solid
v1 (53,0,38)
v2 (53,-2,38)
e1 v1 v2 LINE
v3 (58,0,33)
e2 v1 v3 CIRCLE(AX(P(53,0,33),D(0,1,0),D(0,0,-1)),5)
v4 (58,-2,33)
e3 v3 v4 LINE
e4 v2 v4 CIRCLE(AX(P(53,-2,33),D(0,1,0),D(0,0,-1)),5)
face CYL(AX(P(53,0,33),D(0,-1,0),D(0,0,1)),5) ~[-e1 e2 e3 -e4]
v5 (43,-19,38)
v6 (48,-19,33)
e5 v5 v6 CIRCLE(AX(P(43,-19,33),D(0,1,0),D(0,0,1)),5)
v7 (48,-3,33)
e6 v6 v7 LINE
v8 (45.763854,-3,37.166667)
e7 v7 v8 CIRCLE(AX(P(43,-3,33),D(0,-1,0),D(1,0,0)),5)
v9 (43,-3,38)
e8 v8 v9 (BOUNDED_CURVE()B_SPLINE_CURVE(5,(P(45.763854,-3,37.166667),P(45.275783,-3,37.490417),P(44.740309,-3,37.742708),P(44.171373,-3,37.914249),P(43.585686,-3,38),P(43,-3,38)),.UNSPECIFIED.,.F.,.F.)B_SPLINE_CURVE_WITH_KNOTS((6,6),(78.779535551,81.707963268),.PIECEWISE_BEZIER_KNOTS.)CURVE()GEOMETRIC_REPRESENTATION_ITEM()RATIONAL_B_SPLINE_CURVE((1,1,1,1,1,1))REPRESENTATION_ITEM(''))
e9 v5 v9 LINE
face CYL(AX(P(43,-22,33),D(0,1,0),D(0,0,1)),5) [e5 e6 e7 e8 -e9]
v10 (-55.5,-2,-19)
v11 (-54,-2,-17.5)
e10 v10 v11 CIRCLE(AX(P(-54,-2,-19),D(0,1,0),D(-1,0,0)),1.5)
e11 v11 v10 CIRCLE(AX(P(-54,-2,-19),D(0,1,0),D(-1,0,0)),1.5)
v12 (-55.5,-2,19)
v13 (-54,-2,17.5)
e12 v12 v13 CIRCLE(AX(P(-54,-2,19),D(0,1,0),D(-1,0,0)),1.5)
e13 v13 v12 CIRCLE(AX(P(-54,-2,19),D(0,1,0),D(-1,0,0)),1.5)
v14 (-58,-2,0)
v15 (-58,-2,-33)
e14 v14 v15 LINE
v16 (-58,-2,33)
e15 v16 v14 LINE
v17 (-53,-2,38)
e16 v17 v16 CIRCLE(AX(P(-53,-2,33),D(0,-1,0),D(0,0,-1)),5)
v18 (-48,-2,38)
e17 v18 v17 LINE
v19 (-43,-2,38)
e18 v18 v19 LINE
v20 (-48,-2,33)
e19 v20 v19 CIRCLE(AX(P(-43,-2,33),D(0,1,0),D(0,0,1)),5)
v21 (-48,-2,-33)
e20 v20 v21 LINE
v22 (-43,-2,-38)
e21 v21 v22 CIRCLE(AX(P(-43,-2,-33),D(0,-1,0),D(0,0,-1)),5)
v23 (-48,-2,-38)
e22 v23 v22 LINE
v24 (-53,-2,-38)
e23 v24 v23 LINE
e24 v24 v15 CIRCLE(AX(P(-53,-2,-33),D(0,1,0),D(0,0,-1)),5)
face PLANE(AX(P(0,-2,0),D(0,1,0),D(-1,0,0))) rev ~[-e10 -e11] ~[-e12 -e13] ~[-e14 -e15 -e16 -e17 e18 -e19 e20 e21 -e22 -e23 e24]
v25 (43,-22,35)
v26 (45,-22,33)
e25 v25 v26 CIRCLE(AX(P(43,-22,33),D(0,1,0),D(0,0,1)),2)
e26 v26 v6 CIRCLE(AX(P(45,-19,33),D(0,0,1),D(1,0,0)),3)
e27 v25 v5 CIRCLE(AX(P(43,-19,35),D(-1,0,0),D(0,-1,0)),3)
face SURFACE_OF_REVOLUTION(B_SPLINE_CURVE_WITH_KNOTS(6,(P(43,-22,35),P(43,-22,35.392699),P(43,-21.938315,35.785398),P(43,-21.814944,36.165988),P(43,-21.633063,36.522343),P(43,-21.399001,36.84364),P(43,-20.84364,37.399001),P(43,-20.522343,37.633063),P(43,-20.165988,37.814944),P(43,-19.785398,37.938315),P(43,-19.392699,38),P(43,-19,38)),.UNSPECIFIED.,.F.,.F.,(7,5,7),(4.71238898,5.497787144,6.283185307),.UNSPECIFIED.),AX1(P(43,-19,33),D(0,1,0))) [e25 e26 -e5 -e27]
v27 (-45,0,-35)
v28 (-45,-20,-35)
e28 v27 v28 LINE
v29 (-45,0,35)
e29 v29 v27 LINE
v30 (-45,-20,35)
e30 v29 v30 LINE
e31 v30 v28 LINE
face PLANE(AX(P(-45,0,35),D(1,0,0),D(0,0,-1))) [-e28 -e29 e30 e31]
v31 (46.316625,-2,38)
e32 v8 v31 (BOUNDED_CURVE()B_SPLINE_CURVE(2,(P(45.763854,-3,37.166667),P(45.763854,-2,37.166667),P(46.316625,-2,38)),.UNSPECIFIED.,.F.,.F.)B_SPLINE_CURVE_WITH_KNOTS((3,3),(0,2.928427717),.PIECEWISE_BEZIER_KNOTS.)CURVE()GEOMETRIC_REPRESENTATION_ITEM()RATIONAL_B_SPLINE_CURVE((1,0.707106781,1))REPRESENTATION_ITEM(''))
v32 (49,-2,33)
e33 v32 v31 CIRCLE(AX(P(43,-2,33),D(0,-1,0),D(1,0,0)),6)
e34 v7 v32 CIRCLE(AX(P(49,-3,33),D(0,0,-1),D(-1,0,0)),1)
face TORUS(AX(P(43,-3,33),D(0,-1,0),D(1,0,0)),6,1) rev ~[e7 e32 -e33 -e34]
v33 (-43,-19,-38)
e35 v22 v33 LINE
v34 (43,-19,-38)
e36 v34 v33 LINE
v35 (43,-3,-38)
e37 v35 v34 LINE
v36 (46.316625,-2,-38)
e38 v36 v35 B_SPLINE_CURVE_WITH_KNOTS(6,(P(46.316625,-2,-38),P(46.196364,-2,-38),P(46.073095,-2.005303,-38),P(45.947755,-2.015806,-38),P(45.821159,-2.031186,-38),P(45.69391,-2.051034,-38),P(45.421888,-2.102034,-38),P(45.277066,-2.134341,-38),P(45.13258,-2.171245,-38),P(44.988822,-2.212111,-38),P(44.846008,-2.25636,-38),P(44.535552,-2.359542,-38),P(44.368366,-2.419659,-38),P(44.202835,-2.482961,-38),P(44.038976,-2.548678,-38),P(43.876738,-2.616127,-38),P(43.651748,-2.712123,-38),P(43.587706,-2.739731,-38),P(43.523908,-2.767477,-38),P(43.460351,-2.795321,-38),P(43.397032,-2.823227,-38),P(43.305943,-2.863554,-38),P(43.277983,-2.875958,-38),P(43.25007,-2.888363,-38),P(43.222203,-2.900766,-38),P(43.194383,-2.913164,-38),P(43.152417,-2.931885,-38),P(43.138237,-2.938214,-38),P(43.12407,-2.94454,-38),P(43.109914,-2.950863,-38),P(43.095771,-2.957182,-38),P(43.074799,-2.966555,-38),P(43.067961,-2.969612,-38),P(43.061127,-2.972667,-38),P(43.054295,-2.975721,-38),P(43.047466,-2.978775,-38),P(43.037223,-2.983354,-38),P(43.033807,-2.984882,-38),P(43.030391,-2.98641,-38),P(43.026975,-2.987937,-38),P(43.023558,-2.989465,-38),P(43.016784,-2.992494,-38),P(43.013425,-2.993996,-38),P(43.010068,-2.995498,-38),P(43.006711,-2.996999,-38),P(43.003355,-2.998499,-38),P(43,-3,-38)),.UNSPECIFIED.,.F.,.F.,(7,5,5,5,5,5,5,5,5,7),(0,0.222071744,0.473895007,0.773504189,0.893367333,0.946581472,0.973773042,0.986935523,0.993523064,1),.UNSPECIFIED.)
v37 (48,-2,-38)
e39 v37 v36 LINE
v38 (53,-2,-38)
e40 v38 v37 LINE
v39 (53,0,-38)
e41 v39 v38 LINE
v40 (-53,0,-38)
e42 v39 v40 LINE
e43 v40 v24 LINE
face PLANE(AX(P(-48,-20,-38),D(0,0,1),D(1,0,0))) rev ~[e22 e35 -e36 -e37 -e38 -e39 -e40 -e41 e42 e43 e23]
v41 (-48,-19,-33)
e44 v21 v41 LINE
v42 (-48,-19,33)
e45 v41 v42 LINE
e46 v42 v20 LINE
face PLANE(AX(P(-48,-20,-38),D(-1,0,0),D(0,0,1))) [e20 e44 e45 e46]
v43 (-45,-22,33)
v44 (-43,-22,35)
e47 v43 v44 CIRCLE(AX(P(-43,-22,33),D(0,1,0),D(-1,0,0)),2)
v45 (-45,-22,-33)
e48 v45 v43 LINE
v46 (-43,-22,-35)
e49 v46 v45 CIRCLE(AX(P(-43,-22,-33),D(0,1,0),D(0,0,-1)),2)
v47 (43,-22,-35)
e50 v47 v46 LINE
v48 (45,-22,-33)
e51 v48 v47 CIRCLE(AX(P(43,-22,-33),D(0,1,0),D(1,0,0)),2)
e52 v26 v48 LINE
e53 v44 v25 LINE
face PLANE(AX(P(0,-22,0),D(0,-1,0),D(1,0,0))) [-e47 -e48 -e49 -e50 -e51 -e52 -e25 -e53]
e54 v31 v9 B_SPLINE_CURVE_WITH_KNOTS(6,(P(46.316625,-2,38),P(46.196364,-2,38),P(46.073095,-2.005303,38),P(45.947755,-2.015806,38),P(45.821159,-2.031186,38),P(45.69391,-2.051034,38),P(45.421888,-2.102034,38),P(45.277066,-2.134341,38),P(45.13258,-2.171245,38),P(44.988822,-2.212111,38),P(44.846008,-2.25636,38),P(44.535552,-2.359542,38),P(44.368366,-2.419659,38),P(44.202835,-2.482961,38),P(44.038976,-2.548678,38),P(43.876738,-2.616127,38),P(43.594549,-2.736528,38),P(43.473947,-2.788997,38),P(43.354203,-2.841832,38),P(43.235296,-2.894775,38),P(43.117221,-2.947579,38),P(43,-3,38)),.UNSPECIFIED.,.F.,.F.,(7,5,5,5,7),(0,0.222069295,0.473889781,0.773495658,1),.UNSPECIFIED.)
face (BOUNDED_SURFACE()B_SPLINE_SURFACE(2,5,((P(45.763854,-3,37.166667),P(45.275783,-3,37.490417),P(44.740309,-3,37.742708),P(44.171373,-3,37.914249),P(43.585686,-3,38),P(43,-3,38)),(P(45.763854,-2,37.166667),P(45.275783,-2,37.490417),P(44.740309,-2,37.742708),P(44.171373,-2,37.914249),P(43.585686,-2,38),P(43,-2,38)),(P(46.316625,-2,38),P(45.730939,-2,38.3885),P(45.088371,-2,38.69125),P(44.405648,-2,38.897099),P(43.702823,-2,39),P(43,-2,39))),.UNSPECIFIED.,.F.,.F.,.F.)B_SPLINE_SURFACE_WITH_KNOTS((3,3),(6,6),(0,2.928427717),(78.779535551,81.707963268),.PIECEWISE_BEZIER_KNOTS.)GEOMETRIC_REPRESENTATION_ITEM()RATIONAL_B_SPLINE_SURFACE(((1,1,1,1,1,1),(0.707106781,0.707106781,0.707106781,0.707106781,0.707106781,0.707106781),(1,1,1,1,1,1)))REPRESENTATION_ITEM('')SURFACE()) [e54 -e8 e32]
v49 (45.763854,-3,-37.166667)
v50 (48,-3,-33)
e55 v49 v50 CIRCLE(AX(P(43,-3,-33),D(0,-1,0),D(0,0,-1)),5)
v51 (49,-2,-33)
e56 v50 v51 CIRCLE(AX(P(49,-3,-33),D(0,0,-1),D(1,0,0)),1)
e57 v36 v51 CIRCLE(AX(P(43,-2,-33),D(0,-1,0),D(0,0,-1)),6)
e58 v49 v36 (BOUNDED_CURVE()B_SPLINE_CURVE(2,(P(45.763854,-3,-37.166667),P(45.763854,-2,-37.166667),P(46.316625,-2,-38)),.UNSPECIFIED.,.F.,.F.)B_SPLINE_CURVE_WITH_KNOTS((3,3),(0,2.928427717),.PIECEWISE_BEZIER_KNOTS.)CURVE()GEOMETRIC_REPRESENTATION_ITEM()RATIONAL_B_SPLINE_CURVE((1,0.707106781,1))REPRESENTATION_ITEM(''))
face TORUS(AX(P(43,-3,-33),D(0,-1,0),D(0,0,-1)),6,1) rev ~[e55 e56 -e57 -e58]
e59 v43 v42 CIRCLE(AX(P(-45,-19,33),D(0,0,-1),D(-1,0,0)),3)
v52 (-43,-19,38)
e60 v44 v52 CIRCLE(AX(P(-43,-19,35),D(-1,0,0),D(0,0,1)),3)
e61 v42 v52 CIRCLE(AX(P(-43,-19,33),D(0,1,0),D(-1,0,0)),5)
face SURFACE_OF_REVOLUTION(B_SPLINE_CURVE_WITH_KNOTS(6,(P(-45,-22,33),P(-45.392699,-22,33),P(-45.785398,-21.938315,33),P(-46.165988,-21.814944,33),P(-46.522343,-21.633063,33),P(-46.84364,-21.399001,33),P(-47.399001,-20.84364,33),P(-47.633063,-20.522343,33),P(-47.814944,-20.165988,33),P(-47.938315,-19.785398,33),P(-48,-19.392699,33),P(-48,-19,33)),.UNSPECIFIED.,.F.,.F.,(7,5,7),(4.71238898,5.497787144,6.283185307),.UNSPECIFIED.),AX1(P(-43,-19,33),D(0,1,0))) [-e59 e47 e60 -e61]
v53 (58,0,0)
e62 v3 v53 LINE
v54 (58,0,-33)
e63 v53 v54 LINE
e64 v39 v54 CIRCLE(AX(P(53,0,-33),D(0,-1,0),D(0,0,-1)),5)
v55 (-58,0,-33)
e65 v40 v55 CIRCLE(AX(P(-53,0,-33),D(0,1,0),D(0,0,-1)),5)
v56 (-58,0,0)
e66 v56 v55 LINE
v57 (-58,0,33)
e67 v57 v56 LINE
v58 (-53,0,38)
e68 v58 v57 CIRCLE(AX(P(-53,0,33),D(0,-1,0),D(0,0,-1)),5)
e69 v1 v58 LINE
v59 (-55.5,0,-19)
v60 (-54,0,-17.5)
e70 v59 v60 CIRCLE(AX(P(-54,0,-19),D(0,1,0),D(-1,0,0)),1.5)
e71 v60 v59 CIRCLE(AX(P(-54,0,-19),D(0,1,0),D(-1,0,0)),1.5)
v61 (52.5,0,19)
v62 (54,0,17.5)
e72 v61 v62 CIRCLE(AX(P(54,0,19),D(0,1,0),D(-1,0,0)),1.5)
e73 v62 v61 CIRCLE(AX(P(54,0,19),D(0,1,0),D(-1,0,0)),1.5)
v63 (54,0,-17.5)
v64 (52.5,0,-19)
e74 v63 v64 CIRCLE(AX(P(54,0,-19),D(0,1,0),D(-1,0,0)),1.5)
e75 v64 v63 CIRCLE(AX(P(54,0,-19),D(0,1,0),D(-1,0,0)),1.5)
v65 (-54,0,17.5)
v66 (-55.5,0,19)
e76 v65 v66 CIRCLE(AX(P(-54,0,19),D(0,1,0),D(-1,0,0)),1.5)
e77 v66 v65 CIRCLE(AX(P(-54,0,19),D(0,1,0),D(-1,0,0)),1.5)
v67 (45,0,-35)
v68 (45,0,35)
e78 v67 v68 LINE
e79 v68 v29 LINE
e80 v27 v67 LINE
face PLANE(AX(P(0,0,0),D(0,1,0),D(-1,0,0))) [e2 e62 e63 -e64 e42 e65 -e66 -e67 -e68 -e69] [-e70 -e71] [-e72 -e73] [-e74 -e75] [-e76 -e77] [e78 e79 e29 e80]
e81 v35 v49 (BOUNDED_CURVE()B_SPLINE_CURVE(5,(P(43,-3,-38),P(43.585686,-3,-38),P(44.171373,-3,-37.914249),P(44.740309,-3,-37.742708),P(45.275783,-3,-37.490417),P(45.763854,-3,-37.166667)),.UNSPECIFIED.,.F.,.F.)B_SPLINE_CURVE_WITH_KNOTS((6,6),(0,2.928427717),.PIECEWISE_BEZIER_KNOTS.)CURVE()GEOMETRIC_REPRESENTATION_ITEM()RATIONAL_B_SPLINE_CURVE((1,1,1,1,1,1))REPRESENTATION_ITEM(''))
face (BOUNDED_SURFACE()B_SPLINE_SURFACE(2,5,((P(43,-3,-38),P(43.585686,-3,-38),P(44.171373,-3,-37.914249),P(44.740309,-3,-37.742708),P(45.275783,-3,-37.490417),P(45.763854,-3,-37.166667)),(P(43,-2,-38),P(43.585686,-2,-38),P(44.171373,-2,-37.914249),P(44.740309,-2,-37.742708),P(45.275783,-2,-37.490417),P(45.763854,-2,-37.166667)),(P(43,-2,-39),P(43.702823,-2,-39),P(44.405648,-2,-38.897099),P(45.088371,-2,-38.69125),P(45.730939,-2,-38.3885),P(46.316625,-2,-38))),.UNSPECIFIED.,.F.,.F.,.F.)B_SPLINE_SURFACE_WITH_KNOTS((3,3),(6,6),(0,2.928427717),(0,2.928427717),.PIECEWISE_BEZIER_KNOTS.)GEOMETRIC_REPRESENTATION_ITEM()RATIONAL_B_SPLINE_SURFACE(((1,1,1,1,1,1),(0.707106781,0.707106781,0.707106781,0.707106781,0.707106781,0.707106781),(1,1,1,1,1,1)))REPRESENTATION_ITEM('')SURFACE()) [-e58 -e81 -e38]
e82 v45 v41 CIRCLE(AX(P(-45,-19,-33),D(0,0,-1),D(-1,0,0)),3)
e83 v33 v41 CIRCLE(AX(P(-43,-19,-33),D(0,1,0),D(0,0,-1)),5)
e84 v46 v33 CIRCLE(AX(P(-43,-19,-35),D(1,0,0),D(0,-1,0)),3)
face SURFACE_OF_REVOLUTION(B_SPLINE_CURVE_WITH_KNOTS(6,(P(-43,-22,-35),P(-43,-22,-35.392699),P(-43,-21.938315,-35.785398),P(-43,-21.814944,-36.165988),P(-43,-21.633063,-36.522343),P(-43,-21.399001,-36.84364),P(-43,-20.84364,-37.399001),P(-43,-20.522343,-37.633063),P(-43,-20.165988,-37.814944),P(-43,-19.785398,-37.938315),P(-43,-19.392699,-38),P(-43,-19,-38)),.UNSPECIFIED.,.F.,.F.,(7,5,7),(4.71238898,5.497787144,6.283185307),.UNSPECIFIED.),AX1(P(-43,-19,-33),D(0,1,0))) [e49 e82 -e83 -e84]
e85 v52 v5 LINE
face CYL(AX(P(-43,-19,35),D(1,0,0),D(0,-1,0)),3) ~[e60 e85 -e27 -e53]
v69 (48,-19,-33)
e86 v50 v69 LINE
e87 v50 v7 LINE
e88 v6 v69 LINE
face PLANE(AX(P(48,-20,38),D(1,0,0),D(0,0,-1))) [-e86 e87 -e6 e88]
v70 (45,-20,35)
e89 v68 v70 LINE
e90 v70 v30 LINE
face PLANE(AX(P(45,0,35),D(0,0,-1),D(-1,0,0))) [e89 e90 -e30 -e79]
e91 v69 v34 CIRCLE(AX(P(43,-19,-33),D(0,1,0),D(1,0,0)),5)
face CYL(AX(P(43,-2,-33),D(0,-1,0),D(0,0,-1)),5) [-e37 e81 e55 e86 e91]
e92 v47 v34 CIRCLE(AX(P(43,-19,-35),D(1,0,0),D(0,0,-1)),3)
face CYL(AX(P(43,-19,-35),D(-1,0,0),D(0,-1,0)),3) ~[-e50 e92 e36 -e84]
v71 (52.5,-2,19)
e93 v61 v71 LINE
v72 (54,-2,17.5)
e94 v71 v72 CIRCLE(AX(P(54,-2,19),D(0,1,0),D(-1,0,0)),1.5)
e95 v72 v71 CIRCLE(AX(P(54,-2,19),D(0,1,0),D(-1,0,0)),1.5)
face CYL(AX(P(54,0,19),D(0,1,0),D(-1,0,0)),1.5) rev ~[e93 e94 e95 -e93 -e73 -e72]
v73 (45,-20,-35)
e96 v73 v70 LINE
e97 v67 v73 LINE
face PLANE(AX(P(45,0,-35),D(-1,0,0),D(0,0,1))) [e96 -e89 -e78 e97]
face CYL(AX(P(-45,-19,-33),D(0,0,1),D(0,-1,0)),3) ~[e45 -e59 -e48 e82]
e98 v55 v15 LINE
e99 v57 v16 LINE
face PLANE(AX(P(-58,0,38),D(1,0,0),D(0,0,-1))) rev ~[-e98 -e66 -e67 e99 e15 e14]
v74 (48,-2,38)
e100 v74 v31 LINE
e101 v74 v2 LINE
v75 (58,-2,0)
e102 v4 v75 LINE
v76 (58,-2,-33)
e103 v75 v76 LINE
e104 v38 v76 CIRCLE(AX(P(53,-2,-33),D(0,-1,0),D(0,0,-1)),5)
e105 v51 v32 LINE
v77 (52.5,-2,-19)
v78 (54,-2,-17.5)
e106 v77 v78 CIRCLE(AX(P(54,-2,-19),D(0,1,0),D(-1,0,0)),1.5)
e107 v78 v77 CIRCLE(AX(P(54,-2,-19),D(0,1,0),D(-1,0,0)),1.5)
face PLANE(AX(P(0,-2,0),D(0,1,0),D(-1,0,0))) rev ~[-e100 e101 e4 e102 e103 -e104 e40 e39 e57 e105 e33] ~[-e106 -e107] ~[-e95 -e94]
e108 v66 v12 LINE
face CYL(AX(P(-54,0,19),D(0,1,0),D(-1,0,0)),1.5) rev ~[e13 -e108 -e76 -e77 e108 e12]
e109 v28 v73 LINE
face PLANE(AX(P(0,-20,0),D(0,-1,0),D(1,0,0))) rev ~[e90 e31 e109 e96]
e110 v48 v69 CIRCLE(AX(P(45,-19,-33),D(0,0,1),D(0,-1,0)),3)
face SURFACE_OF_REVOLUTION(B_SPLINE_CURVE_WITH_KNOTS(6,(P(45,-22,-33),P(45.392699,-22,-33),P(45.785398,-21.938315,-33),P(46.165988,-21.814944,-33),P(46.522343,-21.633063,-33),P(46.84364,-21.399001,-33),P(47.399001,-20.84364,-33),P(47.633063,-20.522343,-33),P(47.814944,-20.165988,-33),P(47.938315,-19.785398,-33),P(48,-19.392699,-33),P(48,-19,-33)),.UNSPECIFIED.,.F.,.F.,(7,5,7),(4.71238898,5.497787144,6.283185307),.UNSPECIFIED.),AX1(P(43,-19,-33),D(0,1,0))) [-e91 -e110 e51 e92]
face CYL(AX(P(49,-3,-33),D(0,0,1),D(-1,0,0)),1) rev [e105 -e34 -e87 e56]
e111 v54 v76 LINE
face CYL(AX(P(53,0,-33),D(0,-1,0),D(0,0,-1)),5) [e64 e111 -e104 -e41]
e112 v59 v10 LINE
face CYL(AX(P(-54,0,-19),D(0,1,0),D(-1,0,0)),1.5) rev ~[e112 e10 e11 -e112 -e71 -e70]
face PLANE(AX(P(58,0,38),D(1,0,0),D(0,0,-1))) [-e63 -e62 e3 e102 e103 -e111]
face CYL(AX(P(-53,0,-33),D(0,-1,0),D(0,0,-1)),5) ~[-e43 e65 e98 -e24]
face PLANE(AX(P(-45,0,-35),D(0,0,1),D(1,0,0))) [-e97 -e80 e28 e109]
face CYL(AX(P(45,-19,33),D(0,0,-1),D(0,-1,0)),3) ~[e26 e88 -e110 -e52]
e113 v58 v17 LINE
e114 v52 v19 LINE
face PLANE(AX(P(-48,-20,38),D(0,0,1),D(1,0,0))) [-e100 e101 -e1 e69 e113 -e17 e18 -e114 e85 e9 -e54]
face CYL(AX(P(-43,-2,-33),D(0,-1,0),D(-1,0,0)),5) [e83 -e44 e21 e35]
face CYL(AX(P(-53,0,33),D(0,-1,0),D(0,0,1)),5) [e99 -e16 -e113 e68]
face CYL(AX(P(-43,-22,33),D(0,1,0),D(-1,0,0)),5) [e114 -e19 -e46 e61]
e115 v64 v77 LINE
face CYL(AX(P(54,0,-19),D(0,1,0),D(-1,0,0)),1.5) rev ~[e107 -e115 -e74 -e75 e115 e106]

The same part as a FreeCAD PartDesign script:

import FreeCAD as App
import Part
import Sketcher

V = App.Vector
Q = App.Units.Quantity


def edges_at(feature, points):
    """Names of the edges that pass closest to the given points."""
    edges = feature.Shape.Edges
    near = lambda p: min(range(len(edges)), key=lambda i: edges[i].distToShape(Part.Vertex(*p))[0])
    return sorted({f"Edge{near(p) + 1}" for p in points})


def add_polygon(sketch, points):
    """Adds a closed chain of lines whose ends are joined by coincident constraints."""
    first, n = sketch.GeometryCount, len(points)
    for a, b in zip(points, points[1:] + points[:1]):
        sketch.addGeometry(Part.LineSegment(App.Vector(*a, 0), App.Vector(*b, 0)), False)
    for i in range(n):
        sketch.addConstraint(Sketcher.Constraint("Coincident", first + i, 2, first + (i + 1) % n, 1))

doc = App.newDocument("Part")
params = doc.addObject("Spreadsheet::Sheet", "Params")
for row, (alias, value) in enumerate([
    ("sketch1_width", "96 mm"),
    ("sketch1_width2", "90 mm"),
    ("sketch1_height", "76 mm"),
    ("sketch1_height2", "70 mm"),
    ("pad1_length", "20 mm"),
    ("sketch2_diameter", "3 mm"),
    ("sketch2_width", "10 mm"),
    ("sketch2_height", "76 mm"),
    ("pad2_length", "2 mm"),
    ("sketch3_width", "96 mm"),
    ("sketch3_height", "76 mm"),
    ("pad3_length", "2 mm"),
    ("fillet_radius", "5 mm"),
    ("fillet2_radius", "1 mm"),
    ("fillet3_radius", "3 mm"),
], start=1):
    params.set(f"A{row}", alias)
    params.set(f"B{row}", "=" + value)
    params.setAlias(f"B{row}", alias)

body = doc.addObject("PartDesign::Body", "Body")

# Sketch on XZ plane
sketch1 = body.newObject("Sketcher::SketchObject", "Sketch")
sketch1.AttachmentSupport = (doc.getObject("XZ_Plane"), [""])
sketch1.MapMode = "FlatFace"
add_polygon(sketch1, [(-48, 38), (48, 38), (48, -38), (-48, -38)])  # lines 0-3
add_polygon(sketch1, [(45, -35), (45, 35), (-45, 35), (-45, -35)])  # lines 4-7
sketch1.addConstraint([
    Sketcher.Constraint("Horizontal", 0),
    Sketcher.Constraint("Vertical", 1),
    Sketcher.Constraint("Horizontal", 2),
    Sketcher.Constraint("Vertical", 3),
    Sketcher.Constraint("Vertical", 4),
    Sketcher.Constraint("Horizontal", 5),
    Sketcher.Constraint("Vertical", 6),
    Sketcher.Constraint("Horizontal", 7),
    Sketcher.Constraint("Symmetric", 0, 2, 2, 2, -1, 1),
    Sketcher.Constraint("Symmetric", 4, 2, 6, 2, -1, 1),
    Sketcher.Constraint("DistanceX", 0, 1, 0, 2, Q("96 mm")),
    Sketcher.Constraint("DistanceX", 5, 2, 5, 1, Q("90 mm")),
    Sketcher.Constraint("DistanceY", 1, 2, 1, 1, Q("76 mm")),
    Sketcher.Constraint("DistanceY", 4, 1, 4, 2, Q("70 mm")),
])
sketch1.setExpression("Constraints[18]", "Params.sketch1_width")
sketch1.setExpression("Constraints[19]", "Params.sketch1_width2")
sketch1.setExpression("Constraints[20]", "Params.sketch1_height")
sketch1.setExpression("Constraints[21]", "Params.sketch1_height2")
pad1 = body.newObject("PartDesign::Pad", "Pad")
pad1.Profile = sketch1
pad1.setExpression("Length", "Params.pad1_length")

# Sketch on XZ plane
sketch2 = body.newObject("Sketcher::SketchObject", "Sketch001")
sketch2.AttachmentSupport = (doc.getObject("XZ_Plane"), [""])
sketch2.MapMode = "FlatFace"
add_polygon(sketch2, [(48, -38), (48, 38), (58, 38), (58, 0), (58, -38)])  # lines 0-4
sketch2.addGeometry(Part.Circle(V(54, -19, 0), V(0, 0, 1), 1.5), False)  # 5
sketch2.addGeometry(Part.Circle(V(54, 19, 0), V(0, 0, 1), 1.5), False)  # 6
add_polygon(sketch2, [(-58, 38), (-48, 38), (-48, -38), (-58, -38), (-58, 0)])  # lines 7-11
sketch2.addGeometry(Part.Circle(V(-54, -19, 0), V(0, 0, 1), 1.5), False)  # 12
sketch2.addGeometry(Part.Circle(V(-54, 19, 0), V(0, 0, 1), 1.5), False)  # 13
sketch2.addConstraint([
    Sketcher.Constraint("Vertical", 0),
    Sketcher.Constraint("Horizontal", 1),
    Sketcher.Constraint("Vertical", 2),
    Sketcher.Constraint("Vertical", 3),
    Sketcher.Constraint("Horizontal", 4),
    Sketcher.Constraint("Horizontal", 7),
    Sketcher.Constraint("Vertical", 8),
    Sketcher.Constraint("Horizontal", 9),
    Sketcher.Constraint("Vertical", 10),
    Sketcher.Constraint("Vertical", 11),
    Sketcher.Constraint("Equal", 5, 6),
    Sketcher.Constraint("Equal", 6, 12),
    Sketcher.Constraint("Equal", 12, 13),
    Sketcher.Constraint("Symmetric", 6, 3, 12, 3, -1, 1),
    Sketcher.Constraint("Symmetric", 5, 3, 13, 3, -1, 1),
    Sketcher.Constraint("Symmetric", 4, 2, 7, 2, -1, 1),
    Sketcher.Constraint("Symmetric", 1, 2, 9, 2, -1, 1),
    Sketcher.Constraint("Symmetric", 5, 3, 12, 3, -2),
    Sketcher.Constraint("PointOnObject", 2, 2, -1),
    Sketcher.Constraint("PointOnObject", 10, 2, -1),
    Sketcher.Constraint("Horizontal", 1, 2, 7, 2),
    Sketcher.Constraint("Diameter", 5, Q("3 mm")),
    Sketcher.Constraint("DistanceX", 1, 1, 1, 2, Q("10 mm")),
    Sketcher.Constraint("DistanceY", 0, 1, 0, 2, Q("76 mm")),
    Sketcher.Constraint("DistanceY", 5, 3, 6, 3, Q("38 mm")),
    Sketcher.Constraint("DistanceX", 6, 3, 1, 2, Q("4 mm")),
    Sketcher.Constraint("DistanceX", 7, 2, 0, 2, Q("96 mm")),
])
sketch2.setExpression("Constraints[31]", "Params.sketch2_diameter")
sketch2.setExpression("Constraints[32]", "Params.sketch2_width")
sketch2.setExpression("Constraints[33]", "Params.sketch2_height")
pad2 = body.newObject("PartDesign::Pad", "Pad001")
pad2.Profile = sketch2
pad2.setExpression("Length", "Params.pad2_length")

# Sketch on XZ plane
sketch3 = body.newObject("Sketcher::SketchObject", "Sketch002")
sketch3.AttachmentSupport = (doc.getObject("XZ_Plane"), [""])
sketch3.MapMode = "FlatFace"
sketch3.AttachmentOffset = App.Placement(V(0, 0, 20), App.Rotation())
add_polygon(sketch3, [(-48, 38), (-48, -38), (48, -38), (48, 38)])  # lines 0-3
sketch3.addConstraint([
    Sketcher.Constraint("Vertical", 0),
    Sketcher.Constraint("Horizontal", 1),
    Sketcher.Constraint("Vertical", 2),
    Sketcher.Constraint("Horizontal", 3),
    Sketcher.Constraint("Symmetric", 0, 2, 2, 2, -1, 1),
    Sketcher.Constraint("DistanceX", 1, 1, 1, 2, Q("96 mm")),
    Sketcher.Constraint("DistanceY", 0, 2, 0, 1, Q("76 mm")),
])
sketch3.setExpression("Constraints[9]", "Params.sketch3_width")
sketch3.setExpression("Constraints[10]", "Params.sketch3_height")
pad3 = body.newObject("PartDesign::Pad", "Pad002")
pad3.Profile = sketch3
pad3.setExpression("Length", "Params.pad3_length")
doc.recompute()

fillet = body.newObject("PartDesign::Fillet", "Fillet")
fillet.Base = (pad3, edges_at(pad3, [
    (48, -12, -38),
    (-48, -12, -38),
    (48, -12, 38),
    (-48, -12, 38),
    (-58, -1, 38),
    (-58, -1, -38),
    (58, -1, -38),
    (58, -1, 38),
]))
fillet.setExpression("Radius", "Params.fillet_radius")
doc.recompute()

fillet2 = body.newObject("PartDesign::Fillet", "Fillet001")
fillet2.Base = (fillet, edges_at(fillet, [(48, -2, 0)]))
fillet2.setExpression("Radius", "Params.fillet2_radius")
doc.recompute()

fillet3 = body.newObject("PartDesign::Fillet", "Fillet002")
fillet3.Base = (fillet2, edges_at(fillet2, [
    (-46.535, -22, 36.535),
    (-48, -22, 0),
    (-46.535, -22, -36.535),
    (0, -22, -38),
    (46.535, -22, -36.535),
    (48, -22, 0),
    (46.535, -22, 36.535),
    (0, -22, 38),
]))
fillet3.setExpression("Radius", "Params.fillet3_radius")

doc.recompute()
